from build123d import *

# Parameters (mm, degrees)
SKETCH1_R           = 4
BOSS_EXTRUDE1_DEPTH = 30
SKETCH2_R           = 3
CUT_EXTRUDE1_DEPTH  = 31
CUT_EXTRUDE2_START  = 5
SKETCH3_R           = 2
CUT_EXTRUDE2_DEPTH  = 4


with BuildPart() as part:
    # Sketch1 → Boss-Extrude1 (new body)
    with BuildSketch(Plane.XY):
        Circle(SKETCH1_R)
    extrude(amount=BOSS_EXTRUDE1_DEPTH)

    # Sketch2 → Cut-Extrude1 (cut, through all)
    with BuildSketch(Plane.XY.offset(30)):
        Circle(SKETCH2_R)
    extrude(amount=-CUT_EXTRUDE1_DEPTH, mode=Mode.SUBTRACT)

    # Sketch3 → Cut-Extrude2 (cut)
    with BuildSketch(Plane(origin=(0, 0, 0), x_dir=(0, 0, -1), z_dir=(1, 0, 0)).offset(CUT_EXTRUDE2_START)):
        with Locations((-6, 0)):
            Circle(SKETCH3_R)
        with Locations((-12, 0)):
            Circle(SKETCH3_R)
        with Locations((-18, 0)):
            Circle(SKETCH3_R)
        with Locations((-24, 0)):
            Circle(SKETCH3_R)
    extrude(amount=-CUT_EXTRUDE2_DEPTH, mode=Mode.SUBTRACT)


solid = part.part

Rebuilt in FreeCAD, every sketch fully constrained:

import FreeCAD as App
import Part
import Sketcher
from FreeCAD import Vector

doc = App.newDocument("Part")
params = doc.addObject("Spreadsheet::Sheet", "Params")
for row, (alias, value) in enumerate([
    ("sketch1_diameter", "8 mm"),
    ("pad1_length", "30 mm"),
    ("sketch2_diameter", "6 mm"),
    ("sketch3_diameter", "4 mm"),
    ("pocket2_length", "4 mm"),
], start=1):
    params.set(f"A{row}", alias)
    params.set(f"B{row}", "=" + value)
    params.setAlias(f"B{row}", alias)

body = doc.addObject("PartDesign::Body", "Body")

sketch1 = doc.addObject("Sketcher::SketchObject", "Sketch")
body.addObject(sketch1)
sketch1.AttachmentSupport = (doc.XY_Plane, [""])
sketch1.MapMode = "FlatFace"
sketch1.addGeometry(Part.Circle(Vector(0, 0, 0), Vector(0, 0, 1), 4), False)
sketch1.addConstraint([
    Sketcher.Constraint("Coincident", 0, 3, -1, 1),
    Sketcher.Constraint("Diameter", 0, 8.0),
])
sketch1.setExpression("Constraints[1]", "Params.sketch1_diameter")
pad1 = doc.addObject("PartDesign::Pad", "Pad")
body.addObject(pad1)
pad1.Profile = sketch1
pad1.setExpression("Length", "Params.pad1_length")

sketch2 = doc.addObject("Sketcher::SketchObject", "Sketch001")
body.addObject(sketch2)
sketch2.AttachmentSupport = (doc.XY_Plane, [""])
sketch2.MapMode = "FlatFace"
sketch2.AttachmentOffset = App.Placement(Vector(0, 0, 30), App.Rotation())
sketch2.addGeometry(Part.Circle(Vector(0, 0, 0), Vector(0, 0, 1), 3), False)
sketch2.addConstraint([
    Sketcher.Constraint("Coincident", 0, 3, -1, 1),
    Sketcher.Constraint("Diameter", 0, 6.0),
])
sketch2.setExpression("Constraints[1]", "Params.sketch2_diameter")
pocket1 = doc.addObject("PartDesign::Pocket", "Pocket")
body.addObject(pocket1)
pocket1.Profile = sketch2
pocket1.Type = "ThroughAll"

sketch3 = doc.addObject("Sketcher::SketchObject", "Sketch002")
body.addObject(sketch3)
sketch3.AttachmentSupport = (doc.YZ_Plane, [""])
sketch3.MapMode = "FlatFace"
sketch3.AttachmentOffset = App.Placement(Vector(0, 0, 5), App.Rotation())
sketch3.addGeometry([
    Part.Circle(Vector(0, 6, 0), Vector(0, 0, 1), 2),
    Part.Circle(Vector(0, 12, 0), Vector(0, 0, 1), 2),
    Part.Circle(Vector(0, 18, 0), Vector(0, 0, 1), 2),
    Part.Circle(Vector(0, 24, 0), Vector(0, 0, 1), 2),
], False)
sketch3.addConstraint([
    Sketcher.Constraint("Equal", 0, 1),
    Sketcher.Constraint("Equal", 1, 2),
    Sketcher.Constraint("Equal", 2, 3),
    Sketcher.Constraint("PointOnObject", 0, 3, -2),
    Sketcher.Constraint("PointOnObject", 1, 3, -2),
    Sketcher.Constraint("PointOnObject", 2, 3, -2),
    Sketcher.Constraint("PointOnObject", 3, 3, -2),
    Sketcher.Constraint("Diameter", 0, 4.0),
    Sketcher.Constraint("DistanceY", -1, 1, 0, 3, 6.0),
    Sketcher.Constraint("DistanceY", -1, 1, 1, 3, 12.0),
    Sketcher.Constraint("DistanceY", -1, 1, 2, 3, 18.0),
    Sketcher.Constraint("DistanceY", -1, 1, 3, 3, 24.0),
])
sketch3.setExpression("Constraints[7]", "Params.sketch3_diameter")
pocket2 = doc.addObject("PartDesign::Pocket", "Pocket001")
body.addObject(pocket2)
pocket2.Profile = sketch3
pocket2.setExpression("Length", "Params.pocket2_length")

doc.recompute()
